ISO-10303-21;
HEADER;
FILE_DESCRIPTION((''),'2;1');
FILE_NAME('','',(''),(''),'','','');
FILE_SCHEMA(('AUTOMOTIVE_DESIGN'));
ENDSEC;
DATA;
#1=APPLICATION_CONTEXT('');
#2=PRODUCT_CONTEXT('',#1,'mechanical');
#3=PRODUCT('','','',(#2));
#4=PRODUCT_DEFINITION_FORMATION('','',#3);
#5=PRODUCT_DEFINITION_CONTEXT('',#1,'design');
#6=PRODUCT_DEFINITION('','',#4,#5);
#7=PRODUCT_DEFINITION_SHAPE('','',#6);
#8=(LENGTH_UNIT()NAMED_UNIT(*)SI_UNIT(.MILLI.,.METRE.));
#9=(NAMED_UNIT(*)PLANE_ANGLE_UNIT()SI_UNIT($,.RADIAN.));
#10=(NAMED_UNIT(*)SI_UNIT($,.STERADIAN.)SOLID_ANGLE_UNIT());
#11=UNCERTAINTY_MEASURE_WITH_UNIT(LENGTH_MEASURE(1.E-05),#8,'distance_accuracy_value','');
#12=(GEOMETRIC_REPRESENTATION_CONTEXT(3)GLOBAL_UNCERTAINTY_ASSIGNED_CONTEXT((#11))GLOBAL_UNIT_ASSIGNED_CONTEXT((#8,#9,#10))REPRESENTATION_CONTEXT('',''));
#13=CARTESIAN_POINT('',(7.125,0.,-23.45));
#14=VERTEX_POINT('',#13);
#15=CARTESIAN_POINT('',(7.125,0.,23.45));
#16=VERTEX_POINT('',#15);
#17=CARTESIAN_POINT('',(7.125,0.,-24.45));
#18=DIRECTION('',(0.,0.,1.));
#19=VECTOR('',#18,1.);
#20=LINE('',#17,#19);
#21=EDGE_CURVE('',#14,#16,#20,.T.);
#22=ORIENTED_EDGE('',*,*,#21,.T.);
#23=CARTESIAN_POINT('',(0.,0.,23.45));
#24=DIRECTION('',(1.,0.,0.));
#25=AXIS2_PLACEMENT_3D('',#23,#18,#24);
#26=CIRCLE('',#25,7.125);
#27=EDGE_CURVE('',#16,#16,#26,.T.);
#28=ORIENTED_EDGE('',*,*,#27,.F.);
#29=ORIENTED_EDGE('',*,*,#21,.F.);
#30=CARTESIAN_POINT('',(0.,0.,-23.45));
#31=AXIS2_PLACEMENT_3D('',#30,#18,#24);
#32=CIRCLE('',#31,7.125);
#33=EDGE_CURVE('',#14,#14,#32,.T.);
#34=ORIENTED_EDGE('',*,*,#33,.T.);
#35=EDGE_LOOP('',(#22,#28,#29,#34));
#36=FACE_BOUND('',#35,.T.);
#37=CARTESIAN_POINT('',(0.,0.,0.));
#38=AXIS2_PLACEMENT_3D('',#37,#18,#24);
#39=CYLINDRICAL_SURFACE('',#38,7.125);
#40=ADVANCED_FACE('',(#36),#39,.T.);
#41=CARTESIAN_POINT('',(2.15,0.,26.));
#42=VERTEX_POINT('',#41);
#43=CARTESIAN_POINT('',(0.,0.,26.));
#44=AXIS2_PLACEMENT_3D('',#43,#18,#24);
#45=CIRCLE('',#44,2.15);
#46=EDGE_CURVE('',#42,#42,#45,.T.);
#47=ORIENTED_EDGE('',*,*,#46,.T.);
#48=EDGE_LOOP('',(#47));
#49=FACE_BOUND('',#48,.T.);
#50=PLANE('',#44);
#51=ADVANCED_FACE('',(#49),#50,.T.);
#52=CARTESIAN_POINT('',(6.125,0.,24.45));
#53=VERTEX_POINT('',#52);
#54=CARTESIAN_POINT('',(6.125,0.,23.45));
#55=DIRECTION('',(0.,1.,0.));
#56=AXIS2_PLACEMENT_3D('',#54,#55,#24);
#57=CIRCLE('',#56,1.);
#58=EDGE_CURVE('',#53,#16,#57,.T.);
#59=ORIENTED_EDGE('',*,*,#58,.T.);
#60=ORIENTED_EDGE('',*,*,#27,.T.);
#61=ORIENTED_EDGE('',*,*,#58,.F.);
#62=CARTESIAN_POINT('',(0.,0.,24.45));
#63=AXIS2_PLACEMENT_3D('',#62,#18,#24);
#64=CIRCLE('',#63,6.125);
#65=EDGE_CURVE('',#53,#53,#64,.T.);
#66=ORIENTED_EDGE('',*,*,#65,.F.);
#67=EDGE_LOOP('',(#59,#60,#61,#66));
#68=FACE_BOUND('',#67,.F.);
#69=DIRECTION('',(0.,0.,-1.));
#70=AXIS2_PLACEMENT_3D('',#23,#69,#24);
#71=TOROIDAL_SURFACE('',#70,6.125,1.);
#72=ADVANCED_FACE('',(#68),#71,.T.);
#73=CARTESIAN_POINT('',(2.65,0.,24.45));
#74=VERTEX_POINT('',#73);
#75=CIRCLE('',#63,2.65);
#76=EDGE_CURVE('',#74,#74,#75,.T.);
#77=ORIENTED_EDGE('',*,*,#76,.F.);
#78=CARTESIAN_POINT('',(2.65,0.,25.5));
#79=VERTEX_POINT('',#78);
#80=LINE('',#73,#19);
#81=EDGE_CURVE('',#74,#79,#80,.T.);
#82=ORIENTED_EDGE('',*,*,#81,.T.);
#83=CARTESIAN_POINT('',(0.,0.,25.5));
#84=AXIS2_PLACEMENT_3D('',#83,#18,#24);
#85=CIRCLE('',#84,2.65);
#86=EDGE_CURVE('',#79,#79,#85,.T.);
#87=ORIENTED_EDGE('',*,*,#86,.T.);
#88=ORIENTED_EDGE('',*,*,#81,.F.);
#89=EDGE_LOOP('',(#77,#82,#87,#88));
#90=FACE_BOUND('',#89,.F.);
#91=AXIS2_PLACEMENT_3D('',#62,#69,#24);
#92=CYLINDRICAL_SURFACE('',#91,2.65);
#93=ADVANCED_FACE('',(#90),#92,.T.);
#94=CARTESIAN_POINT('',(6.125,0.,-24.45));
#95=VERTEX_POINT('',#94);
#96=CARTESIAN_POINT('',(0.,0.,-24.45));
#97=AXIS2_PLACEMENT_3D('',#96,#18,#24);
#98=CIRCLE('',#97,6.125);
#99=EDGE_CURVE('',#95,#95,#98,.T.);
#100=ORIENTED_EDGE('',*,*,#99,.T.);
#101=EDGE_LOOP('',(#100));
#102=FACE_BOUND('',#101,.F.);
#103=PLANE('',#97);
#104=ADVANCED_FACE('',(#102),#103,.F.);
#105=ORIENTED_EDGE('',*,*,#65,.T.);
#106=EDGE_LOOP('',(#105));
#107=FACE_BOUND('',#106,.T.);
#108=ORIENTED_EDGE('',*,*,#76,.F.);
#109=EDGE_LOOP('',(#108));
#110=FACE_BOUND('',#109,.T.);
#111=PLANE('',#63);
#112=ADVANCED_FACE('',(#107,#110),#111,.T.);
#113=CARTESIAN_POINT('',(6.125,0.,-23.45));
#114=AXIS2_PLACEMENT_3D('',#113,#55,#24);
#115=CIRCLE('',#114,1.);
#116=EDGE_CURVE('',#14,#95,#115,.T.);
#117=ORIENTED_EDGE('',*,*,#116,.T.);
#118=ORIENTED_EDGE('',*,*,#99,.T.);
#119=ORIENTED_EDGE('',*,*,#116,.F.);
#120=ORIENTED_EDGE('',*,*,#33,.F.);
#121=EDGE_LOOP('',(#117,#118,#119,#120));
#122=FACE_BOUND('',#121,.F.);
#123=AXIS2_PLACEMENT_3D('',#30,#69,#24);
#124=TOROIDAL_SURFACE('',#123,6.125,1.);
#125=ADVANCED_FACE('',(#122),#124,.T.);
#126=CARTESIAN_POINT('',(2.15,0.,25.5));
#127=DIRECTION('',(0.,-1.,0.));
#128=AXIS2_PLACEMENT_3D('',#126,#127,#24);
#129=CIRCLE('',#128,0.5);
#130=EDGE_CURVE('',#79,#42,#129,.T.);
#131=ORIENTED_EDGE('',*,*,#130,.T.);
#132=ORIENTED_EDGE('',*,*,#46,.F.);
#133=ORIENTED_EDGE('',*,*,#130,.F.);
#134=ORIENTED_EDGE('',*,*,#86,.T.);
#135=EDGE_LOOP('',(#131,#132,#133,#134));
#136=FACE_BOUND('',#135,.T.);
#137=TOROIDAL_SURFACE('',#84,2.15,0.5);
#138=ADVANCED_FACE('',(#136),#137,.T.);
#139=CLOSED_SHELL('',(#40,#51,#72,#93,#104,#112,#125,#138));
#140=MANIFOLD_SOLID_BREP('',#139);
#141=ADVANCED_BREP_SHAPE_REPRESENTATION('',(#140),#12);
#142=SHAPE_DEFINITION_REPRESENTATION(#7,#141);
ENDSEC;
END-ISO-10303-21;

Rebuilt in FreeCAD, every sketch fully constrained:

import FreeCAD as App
import Part
import Sketcher

V = App.Vector


def edges_at(feature, points):
    """Names of the edges that pass closest to the given points."""
    edges = feature.Shape.Edges
    near = lambda p: min(range(len(edges)), key=lambda i: edges[i].distToShape(Part.Vertex(*p))[0])
    return sorted({f"Edge{near(p) + 1}" for p in points})

doc = App.newDocument("Part")
body = doc.addObject("PartDesign::Body", "Body")

sketch1 = body.newObject("Sketcher::SketchObject", "Sketch")
sketch1.AttachmentSupport = (doc.getObject("XY_Plane"), [""])
sketch1.MapMode = "FlatFace"
sketch1.addGeometry(Part.Circle(V(0, 0, 0), V(0, 0, 1), 7), False)
sketch1.addConstraint([
    Sketcher.Constraint("Coincident", 0, 3, -1, 1),
    Sketcher.Constraint("Diameter", 0, 14.25),
])
pad1 = body.newObject("PartDesign::Pad", "Pad")
pad1.Profile = sketch1
pad1.Length = 48.9
pad1.Midplane = True

sketch2 = body.newObject("Sketcher::SketchObject", "Sketch001")
sketch2.AttachmentSupport = (doc.getObject("XY_Plane"), [""])
sketch2.MapMode = "FlatFace"
sketch2.AttachmentOffset = App.Placement(V(0, 0, 24.45), App.Rotation())
sketch2.addGeometry(Part.Circle(V(0, 0, 0), V(0, 0, 1), 2.6), False)
sketch2.addConstraint([
    Sketcher.Constraint("Coincident", 0, 3, -1, 1),
    Sketcher.Constraint("Diameter", 0, 5.3),
])
pad2 = body.newObject("PartDesign::Pad", "Pad001")
pad2.Profile = sketch2
pad2.Length = 1.55
doc.recompute()

fillet = body.newObject("PartDesign::Fillet", "Fillet")
fillet.Base = (pad2, edges_at(pad2, [(-2.65, 0, 26)]))
fillet.Radius = 0.5
doc.recompute()

fillet2 = body.newObject("PartDesign::Fillet", "Fillet001")
fillet2.Base = (fillet, edges_at(fillet, [(-7.125, 0, 24.45), (-7.125, 0, -24.45)]))
fillet2.Radius = 1

doc.recompute()
